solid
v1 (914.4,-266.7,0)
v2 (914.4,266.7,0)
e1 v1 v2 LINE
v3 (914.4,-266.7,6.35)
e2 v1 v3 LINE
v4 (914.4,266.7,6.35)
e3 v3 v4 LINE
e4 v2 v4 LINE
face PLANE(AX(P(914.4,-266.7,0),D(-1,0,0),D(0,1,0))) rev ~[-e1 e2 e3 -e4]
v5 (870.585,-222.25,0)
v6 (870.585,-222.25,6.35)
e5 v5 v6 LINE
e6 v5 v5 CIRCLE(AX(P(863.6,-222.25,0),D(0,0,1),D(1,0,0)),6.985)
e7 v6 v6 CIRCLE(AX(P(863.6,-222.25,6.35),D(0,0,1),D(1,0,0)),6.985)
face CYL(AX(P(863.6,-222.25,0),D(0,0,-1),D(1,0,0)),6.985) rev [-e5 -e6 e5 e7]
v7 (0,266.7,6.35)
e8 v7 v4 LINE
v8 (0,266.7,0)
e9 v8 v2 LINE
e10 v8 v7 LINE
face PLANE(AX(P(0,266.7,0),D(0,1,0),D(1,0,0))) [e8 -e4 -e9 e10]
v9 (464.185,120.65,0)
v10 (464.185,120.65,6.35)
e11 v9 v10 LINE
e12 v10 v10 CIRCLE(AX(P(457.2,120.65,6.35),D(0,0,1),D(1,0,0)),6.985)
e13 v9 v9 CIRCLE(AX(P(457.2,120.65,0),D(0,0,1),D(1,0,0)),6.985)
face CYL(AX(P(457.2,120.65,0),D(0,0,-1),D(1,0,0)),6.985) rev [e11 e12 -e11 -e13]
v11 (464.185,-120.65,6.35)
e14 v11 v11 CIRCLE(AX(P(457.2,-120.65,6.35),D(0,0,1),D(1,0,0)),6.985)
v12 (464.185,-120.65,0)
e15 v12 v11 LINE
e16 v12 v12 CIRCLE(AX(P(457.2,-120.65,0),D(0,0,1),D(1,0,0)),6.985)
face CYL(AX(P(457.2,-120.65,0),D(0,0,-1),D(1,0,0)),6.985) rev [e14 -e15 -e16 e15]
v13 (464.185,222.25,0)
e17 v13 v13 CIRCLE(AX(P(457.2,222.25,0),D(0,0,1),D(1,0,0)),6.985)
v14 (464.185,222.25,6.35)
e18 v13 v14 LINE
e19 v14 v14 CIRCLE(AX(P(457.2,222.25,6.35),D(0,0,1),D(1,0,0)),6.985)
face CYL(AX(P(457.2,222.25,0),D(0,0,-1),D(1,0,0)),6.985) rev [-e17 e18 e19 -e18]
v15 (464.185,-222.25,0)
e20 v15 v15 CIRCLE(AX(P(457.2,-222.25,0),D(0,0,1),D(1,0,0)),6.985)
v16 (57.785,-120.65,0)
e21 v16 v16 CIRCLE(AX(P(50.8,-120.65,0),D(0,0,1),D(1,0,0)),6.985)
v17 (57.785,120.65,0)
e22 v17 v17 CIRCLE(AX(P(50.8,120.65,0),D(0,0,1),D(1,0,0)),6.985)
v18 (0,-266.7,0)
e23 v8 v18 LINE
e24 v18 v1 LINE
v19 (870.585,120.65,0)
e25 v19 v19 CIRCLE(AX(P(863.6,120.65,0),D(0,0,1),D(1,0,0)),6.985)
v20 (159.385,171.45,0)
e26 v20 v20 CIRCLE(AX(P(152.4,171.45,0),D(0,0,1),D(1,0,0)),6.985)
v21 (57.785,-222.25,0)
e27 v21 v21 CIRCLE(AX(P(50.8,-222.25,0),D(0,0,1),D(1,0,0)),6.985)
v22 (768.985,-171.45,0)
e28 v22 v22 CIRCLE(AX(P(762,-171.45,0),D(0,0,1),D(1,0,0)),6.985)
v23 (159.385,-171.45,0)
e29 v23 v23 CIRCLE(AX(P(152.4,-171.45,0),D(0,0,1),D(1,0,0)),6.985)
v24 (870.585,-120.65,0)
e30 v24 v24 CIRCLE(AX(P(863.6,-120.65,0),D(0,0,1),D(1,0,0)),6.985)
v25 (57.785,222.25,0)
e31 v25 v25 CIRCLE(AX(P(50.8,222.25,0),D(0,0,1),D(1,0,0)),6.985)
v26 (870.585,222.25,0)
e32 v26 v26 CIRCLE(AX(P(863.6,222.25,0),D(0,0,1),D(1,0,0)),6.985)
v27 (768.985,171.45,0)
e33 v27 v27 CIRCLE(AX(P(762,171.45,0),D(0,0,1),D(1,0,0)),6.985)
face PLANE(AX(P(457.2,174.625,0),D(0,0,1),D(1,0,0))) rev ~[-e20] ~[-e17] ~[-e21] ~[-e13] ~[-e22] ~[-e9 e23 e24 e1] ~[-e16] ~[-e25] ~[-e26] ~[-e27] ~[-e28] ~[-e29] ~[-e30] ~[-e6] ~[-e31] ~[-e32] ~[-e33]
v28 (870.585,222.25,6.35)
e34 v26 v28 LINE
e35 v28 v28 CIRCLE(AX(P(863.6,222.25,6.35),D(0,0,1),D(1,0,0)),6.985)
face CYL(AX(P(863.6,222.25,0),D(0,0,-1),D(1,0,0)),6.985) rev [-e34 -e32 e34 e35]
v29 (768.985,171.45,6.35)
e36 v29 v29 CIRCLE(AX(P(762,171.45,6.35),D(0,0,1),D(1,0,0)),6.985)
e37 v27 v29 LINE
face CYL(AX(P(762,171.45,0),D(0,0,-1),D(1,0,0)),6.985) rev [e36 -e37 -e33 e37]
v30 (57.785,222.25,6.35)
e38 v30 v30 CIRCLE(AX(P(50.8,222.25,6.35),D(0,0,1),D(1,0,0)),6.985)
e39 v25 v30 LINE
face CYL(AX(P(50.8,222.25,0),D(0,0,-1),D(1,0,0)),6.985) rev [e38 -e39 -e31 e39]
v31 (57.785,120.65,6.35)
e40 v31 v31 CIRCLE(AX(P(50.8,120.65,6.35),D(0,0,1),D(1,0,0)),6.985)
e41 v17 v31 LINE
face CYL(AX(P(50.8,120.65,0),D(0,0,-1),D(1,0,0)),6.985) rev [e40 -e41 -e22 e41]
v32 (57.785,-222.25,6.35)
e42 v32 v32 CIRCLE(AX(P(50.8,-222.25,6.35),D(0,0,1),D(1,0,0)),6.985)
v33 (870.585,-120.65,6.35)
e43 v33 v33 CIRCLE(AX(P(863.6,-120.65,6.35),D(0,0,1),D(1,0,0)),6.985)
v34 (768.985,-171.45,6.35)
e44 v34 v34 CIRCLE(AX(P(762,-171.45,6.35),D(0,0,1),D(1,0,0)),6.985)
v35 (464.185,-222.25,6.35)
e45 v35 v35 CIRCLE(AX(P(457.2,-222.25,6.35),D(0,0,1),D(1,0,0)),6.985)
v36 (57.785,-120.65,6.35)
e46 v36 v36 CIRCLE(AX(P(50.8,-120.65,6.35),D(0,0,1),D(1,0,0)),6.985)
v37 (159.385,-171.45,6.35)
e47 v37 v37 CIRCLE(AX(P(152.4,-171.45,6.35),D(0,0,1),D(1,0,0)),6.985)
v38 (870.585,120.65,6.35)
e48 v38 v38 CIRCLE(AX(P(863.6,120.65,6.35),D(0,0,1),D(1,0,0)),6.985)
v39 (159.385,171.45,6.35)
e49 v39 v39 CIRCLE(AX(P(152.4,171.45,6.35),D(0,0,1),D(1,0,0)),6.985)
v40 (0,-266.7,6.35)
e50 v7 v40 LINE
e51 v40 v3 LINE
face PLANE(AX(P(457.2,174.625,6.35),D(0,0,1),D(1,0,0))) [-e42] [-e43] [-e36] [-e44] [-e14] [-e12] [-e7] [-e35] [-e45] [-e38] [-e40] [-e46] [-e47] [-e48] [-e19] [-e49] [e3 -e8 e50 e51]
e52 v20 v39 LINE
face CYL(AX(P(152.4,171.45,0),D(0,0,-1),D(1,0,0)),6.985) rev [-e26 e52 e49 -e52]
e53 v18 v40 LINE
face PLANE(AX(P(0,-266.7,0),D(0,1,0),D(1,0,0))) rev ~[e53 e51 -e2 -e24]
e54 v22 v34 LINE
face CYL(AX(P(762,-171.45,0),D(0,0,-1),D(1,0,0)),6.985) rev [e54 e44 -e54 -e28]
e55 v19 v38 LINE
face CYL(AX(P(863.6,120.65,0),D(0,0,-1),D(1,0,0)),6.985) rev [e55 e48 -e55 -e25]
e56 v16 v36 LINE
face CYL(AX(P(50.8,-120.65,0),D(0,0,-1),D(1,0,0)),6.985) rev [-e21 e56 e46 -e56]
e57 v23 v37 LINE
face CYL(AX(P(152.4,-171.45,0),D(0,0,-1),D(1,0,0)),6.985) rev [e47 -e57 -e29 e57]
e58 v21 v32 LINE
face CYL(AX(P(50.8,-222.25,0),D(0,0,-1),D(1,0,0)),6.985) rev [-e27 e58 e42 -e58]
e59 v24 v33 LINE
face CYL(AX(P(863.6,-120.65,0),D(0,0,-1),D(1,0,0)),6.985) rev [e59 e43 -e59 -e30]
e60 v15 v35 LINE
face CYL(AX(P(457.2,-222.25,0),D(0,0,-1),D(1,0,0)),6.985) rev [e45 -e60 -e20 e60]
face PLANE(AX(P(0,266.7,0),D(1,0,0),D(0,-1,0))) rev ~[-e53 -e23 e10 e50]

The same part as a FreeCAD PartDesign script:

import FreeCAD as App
import Part
import Sketcher
Q = App.Units.Quantity

doc = App.newDocument("Part")
body = doc.addObject("PartDesign::Body", "Body")

# Sketch on XY plane
sketch1 = body.newObject("Sketcher::SketchObject", "Sketch")
sketch1.AttachmentSupport = (doc.getObject("XY_Plane"), [""])
sketch1.MapMode = "FlatFace"
sketch1.addGeometry(Part.LineSegment(App.Vector(0, 266.7, 0), App.Vector(0, -266.7, 0)), False)
sketch1.addGeometry(Part.LineSegment(App.Vector(0, -266.7, 0), App.Vector(914.4, -266.7, 0)), False)
sketch1.addGeometry(Part.LineSegment(App.Vector(914.4, -266.7, 0), App.Vector(914.4, 266.7, 0)), False)
sketch1.addGeometry(Part.LineSegment(App.Vector(914.4, 266.7, 0), App.Vector(0, 266.7, 0)), False)
sketch1.addGeometry(Part.Circle(App.Vector(50.8, -222.25, 0), App.Vector(0, 0, 1), 6.985), False)
sketch1.addGeometry(Part.Circle(App.Vector(50.8, -120.65, 0), App.Vector(0, 0, 1), 6.985), False)
sketch1.addGeometry(Part.Circle(App.Vector(152.4, -171.45, 0), App.Vector(0, 0, 1), 6.985), False)
sketch1.addGeometry(Part.Circle(App.Vector(457.2, -222.25, 0), App.Vector(0, 0, 1), 6.985), False)
sketch1.addGeometry(Part.Circle(App.Vector(457.2, -120.65, 0), App.Vector(0, 0, 1), 6.985), False)
sketch1.addGeometry(Part.Circle(App.Vector(863.6, -222.25, 0), App.Vector(0, 0, 1), 6.985), False)
sketch1.addGeometry(Part.Circle(App.Vector(762, -171.45, 0), App.Vector(0, 0, 1), 6.985), False)
sketch1.addGeometry(Part.Circle(App.Vector(863.6, -120.65, 0), App.Vector(0, 0, 1), 6.985), False)
sketch1.addGeometry(Part.Circle(App.Vector(50.8, 120.65, 0), App.Vector(0, 0, 1), 6.985), False)
sketch1.addGeometry(Part.Circle(App.Vector(152.4, 171.45, 0), App.Vector(0, 0, 1), 6.985), False)
sketch1.addGeometry(Part.Circle(App.Vector(50.8, 222.25, 0), App.Vector(0, 0, 1), 6.985), False)
sketch1.addGeometry(Part.Circle(App.Vector(457.2, 120.65, 0), App.Vector(0, 0, 1), 6.985), False)
sketch1.addGeometry(Part.Circle(App.Vector(457.2, 222.25, 0), App.Vector(0, 0, 1), 6.985), False)
sketch1.addGeometry(Part.Circle(App.Vector(762, 171.45, 0), App.Vector(0, 0, 1), 6.985), False)
sketch1.addGeometry(Part.Circle(App.Vector(863.6, 120.65, 0), App.Vector(0, 0, 1), 6.985), False)
sketch1.addGeometry(Part.Circle(App.Vector(863.6, 222.25, 0), App.Vector(0, 0, 1), 6.985), False)
sketch1.addConstraint(Sketcher.Constraint("Coincident", 0, 2, 1, 1))
sketch1.addConstraint(Sketcher.Constraint("Coincident", 1, 2, 2, 1))
sketch1.addConstraint(Sketcher.Constraint("Coincident", 2, 2, 3, 1))
sketch1.addConstraint(Sketcher.Constraint("Coincident", 3, 2, 0, 1))
sketch1.addConstraint(Sketcher.Constraint("Vertical", 0))
sketch1.addConstraint(Sketcher.Constraint("Horizontal", 1))
sketch1.addConstraint(Sketcher.Constraint("Vertical", 2))
sketch1.addConstraint(Sketcher.Constraint("Horizontal", 3))
sketch1.addConstraint(Sketcher.Constraint("Equal", 4, 5))
sketch1.addConstraint(Sketcher.Constraint("Equal", 5, 6))
sketch1.addConstraint(Sketcher.Constraint("Equal", 6, 7))
sketch1.addConstraint(Sketcher.Constraint("Equal", 7, 8))
sketch1.addConstraint(Sketcher.Constraint("Equal", 8, 9))
sketch1.addConstraint(Sketcher.Constraint("Equal", 9, 10))
sketch1.addConstraint(Sketcher.Constraint("Equal", 10, 11))
sketch1.addConstraint(Sketcher.Constraint("Equal", 11, 12))
sketch1.addConstraint(Sketcher.Constraint("Equal", 12, 13))
sketch1.addConstraint(Sketcher.Constraint("Equal", 13, 14))
sketch1.addConstraint(Sketcher.Constraint("Equal", 14, 15))
sketch1.addConstraint(Sketcher.Constraint("Equal", 15, 16))
sketch1.addConstraint(Sketcher.Constraint("Equal", 16, 17))
sketch1.addConstraint(Sketcher.Constraint("Equal", 17, 18))
sketch1.addConstraint(Sketcher.Constraint("Equal", 18, 19))
sketch1.addConstraint(Sketcher.Constraint("Symmetric", 0, 2, 3, 2, -1, 1))
sketch1.addConstraint(Sketcher.Constraint("Symmetric", 5, 3, 12, 3, -1))
sketch1.addConstraint(Sketcher.Constraint("Symmetric", 6, 3, 13, 3, -1))
sketch1.addConstraint(Sketcher.Constraint("Symmetric", 4, 3, 14, 3, -1))
sketch1.addConstraint(Sketcher.Constraint("Symmetric", 8, 3, 15, 3, -1))
sketch1.addConstraint(Sketcher.Constraint("Symmetric", 7, 3, 16, 3, -1))
sketch1.addConstraint(Sketcher.Constraint("Symmetric", 10, 3, 17, 3, -1))
sketch1.addConstraint(Sketcher.Constraint("Symmetric", 11, 3, 18, 3, -1))
sketch1.addConstraint(Sketcher.Constraint("Symmetric", 9, 3, 19, 3, -1))
sketch1.addConstraint(Sketcher.Constraint("Horizontal", 4, 3, 7, 3))
sketch1.addConstraint(Sketcher.Constraint("Horizontal", 5, 3, 8, 3))
sketch1.addConstraint(Sketcher.Constraint("Horizontal", 7, 3, 9, 3))
sketch1.addConstraint(Sketcher.Constraint("Horizontal", 6, 3, 10, 3))
sketch1.addConstraint(Sketcher.Constraint("Horizontal", 8, 3, 11, 3))
sketch1.addConstraint(Sketcher.Constraint("Vertical", 4, 3, 5, 3))
sketch1.addConstraint(Sketcher.Constraint("Vertical", 7, 3, 8, 3))
sketch1.addConstraint(Sketcher.Constraint("Vertical", 9, 3, 11, 3))
sketch1.addConstraint(Sketcher.Constraint("Diameter", 4, Q("0.55 in")))
sketch1.addConstraint(Sketcher.Constraint("DistanceX", 1, 1, 1, 2, Q("36 in")))
sketch1.addConstraint(Sketcher.Constraint("DistanceY", 0, 2, 0, 1, Q("21 in")))
sketch1.addConstraint(Sketcher.Constraint("DistanceX", -1, 1, 4, 3, Q("2 in")))
sketch1.addConstraint(Sketcher.Constraint("DistanceX", -1, 1, 6, 3, Q("6 in")))
sketch1.addConstraint(Sketcher.Constraint("DistanceX", -1, 1, 7, 3, Q("18 in")))
sketch1.addConstraint(Sketcher.Constraint("DistanceX", -1, 1, 9, 3, Q("34 in")))
sketch1.addConstraint(Sketcher.Constraint("DistanceX", -1, 1, 10, 3, Q("30 in")))
sketch1.addConstraint(Sketcher.Constraint("DistanceY", 4, 3, 5, 3, Q("4 in")))
sketch1.addConstraint(Sketcher.Constraint("DistanceY", 4, 3, 6, 3, Q("2 in")))
sketch1.addConstraint(Sketcher.Constraint("DistanceY", 5, 3, 12, 3, Q("9.5 in")))
pad1 = body.newObject("PartDesign::Pad", "Pad")
pad1.Profile = sketch1
pad1.Length = Q("0.25 in")

doc.recompute()
